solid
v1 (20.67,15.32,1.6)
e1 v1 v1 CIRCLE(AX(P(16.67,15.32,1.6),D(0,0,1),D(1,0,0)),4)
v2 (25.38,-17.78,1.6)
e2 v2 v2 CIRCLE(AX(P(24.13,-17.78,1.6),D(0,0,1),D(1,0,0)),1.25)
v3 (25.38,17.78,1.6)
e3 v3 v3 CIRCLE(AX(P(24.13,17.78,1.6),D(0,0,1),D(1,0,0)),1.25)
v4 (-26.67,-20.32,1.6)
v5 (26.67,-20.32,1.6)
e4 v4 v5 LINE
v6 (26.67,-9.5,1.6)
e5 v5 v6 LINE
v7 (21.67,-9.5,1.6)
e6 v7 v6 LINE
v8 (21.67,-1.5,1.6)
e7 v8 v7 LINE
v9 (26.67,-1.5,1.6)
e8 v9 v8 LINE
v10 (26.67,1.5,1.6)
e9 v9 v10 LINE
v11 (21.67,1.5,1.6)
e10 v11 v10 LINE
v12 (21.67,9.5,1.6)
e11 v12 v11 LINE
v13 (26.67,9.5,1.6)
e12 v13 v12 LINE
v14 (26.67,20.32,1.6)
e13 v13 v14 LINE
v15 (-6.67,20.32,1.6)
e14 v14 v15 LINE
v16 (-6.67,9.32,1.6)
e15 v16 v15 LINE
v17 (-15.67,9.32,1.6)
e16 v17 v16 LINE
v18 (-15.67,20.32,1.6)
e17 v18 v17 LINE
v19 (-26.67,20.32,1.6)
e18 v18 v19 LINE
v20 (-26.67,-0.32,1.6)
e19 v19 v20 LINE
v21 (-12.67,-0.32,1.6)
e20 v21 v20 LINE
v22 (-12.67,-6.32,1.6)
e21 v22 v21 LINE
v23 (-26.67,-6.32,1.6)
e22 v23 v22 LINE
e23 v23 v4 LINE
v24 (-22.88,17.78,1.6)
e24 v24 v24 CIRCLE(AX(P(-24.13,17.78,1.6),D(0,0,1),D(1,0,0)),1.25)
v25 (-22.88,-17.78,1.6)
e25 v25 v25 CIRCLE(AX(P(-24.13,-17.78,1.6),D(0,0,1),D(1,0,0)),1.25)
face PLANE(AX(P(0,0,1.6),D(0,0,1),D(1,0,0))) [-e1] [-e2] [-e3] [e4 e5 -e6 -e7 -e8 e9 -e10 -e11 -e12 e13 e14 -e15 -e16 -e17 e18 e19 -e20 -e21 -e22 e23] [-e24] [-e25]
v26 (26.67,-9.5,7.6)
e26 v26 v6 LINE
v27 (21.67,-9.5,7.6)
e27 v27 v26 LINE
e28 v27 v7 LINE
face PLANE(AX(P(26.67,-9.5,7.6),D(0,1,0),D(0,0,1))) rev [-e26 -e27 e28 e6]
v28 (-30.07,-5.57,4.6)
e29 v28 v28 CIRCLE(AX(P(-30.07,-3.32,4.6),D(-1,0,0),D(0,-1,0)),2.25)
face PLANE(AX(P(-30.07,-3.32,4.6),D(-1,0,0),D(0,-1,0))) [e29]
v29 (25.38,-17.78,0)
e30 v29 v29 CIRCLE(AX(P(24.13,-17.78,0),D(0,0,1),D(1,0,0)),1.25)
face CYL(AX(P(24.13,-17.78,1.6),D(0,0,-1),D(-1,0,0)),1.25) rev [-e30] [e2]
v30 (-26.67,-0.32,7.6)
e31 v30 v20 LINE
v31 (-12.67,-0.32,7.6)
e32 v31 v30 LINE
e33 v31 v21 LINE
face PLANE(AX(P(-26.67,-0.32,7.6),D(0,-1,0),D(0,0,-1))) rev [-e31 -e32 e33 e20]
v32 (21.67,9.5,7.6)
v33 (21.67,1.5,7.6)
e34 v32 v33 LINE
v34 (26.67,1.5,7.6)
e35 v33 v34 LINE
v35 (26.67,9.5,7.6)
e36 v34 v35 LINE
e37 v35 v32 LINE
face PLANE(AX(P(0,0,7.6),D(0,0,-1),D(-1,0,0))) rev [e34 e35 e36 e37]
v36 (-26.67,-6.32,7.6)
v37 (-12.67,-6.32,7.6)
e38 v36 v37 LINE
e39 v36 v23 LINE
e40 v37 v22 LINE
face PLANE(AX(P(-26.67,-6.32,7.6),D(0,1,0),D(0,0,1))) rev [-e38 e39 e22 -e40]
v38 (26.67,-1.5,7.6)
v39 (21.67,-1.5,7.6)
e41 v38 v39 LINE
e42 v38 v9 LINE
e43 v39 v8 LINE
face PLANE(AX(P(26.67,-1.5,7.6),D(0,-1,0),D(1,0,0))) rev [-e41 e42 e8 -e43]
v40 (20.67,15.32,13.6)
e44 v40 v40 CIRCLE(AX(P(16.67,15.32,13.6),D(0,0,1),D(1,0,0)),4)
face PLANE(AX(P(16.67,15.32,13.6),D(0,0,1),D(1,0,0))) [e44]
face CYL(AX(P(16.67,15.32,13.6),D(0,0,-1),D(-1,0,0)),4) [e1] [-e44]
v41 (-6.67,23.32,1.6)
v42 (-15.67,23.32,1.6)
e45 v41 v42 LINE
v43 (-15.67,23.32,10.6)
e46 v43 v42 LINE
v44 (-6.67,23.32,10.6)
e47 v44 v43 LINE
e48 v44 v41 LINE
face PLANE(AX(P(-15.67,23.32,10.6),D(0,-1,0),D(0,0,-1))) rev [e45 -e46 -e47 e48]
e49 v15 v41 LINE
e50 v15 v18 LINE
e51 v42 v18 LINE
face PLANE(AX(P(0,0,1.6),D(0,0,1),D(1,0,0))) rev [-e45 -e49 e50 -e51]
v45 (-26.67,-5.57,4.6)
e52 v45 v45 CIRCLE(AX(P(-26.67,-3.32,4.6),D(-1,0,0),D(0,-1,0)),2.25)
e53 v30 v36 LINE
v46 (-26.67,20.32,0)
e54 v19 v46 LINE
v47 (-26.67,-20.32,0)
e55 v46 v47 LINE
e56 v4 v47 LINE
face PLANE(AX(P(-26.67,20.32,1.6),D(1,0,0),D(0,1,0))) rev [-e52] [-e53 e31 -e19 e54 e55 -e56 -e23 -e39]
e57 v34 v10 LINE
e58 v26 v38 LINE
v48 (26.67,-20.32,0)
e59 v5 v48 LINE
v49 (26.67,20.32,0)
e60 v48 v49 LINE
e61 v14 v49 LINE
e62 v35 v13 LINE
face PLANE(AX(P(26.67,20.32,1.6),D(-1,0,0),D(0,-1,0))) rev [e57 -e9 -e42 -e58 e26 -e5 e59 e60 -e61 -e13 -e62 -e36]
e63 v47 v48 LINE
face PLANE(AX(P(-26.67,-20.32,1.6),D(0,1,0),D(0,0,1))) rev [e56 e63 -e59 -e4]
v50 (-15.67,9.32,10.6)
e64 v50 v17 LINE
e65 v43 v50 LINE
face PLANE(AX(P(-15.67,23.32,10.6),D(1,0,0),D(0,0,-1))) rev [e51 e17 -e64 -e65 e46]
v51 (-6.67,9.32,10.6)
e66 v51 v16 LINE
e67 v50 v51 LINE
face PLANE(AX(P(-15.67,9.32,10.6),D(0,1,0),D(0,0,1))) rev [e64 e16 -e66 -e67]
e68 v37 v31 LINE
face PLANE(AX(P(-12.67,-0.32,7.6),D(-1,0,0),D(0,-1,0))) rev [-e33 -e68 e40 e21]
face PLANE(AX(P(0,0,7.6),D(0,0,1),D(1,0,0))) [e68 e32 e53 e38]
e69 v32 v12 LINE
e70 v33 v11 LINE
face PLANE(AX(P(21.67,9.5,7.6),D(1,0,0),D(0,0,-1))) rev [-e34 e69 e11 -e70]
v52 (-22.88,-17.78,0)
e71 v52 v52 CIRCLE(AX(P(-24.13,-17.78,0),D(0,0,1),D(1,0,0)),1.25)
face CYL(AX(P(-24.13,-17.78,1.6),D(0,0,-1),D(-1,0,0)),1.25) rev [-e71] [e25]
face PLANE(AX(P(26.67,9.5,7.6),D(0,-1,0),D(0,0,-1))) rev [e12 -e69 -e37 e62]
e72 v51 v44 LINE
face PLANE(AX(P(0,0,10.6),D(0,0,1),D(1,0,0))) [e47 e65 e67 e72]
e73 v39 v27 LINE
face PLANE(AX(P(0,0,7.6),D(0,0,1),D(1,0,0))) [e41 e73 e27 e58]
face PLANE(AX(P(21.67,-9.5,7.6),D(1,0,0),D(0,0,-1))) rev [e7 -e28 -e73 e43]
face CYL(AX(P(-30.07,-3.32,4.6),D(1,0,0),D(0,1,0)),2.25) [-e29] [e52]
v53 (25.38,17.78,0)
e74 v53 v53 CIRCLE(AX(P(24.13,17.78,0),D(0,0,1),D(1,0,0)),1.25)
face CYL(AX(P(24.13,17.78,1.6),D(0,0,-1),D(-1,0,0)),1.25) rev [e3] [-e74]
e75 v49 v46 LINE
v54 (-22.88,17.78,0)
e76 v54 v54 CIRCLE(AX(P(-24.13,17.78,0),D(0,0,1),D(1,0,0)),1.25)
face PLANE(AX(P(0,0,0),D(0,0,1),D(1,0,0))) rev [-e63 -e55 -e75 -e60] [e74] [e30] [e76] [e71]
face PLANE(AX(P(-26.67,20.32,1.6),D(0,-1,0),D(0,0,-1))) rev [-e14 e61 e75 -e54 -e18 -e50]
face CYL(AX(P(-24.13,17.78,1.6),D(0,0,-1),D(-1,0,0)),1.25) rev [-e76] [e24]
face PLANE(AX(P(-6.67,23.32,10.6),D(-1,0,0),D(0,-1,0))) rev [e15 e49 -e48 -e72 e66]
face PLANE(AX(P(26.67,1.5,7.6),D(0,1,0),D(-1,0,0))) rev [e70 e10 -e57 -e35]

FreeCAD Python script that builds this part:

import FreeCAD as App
import Part
import Sketcher
from FreeCAD import Vector


def add_polygon(sketch, points):
    """Adds a closed chain of lines whose ends are joined by coincident constraints."""
    first, n = sketch.GeometryCount, len(points)
    for a, b in zip(points, points[1:] + points[:1]):
        sketch.addGeometry(Part.LineSegment(App.Vector(*a, 0), App.Vector(*b, 0)), False)
    for i in range(n):
        sketch.addConstraint(Sketcher.Constraint("Coincident", first + i, 2, first + (i + 1) % n, 1))

doc = App.newDocument("Part")
body = doc.addObject("PartDesign::Body", "Body")

# Sketch on XY plane
sketch1 = body.newObject("Sketcher::SketchObject", "Sketch")
sketch1.AttachmentSupport = (doc.getObject("XY_Plane"), [""])
sketch1.MapMode = "FlatFace"
add_polygon(sketch1, [(-26.7, 20.3), (-26.7, -20.3), (26.7, -20.3), (26.7, 20.3)])  # lines 0-3
sketch1.addGeometry(Part.Circle(Vector(-24.1, -17.8, 0), Vector(0, 0, 1), 1.2), False)  # 4
sketch1.addGeometry(Part.Circle(Vector(24.1, -17.8, 0), Vector(0, 0, 1), 1.2), False)  # 5
sketch1.addGeometry(Part.Circle(Vector(-24.1, 17.8, 0), Vector(0, 0, 1), 1.2), False)  # 6
sketch1.addGeometry(Part.Circle(Vector(24.1, 17.8, 0), Vector(0, 0, 1), 1.2), False)  # 7
sketch1.addConstraint(Sketcher.Constraint("Vertical", 0))
sketch1.addConstraint(Sketcher.Constraint("Horizontal", 1))
sketch1.addConstraint(Sketcher.Constraint("Vertical", 2))
sketch1.addConstraint(Sketcher.Constraint("Horizontal", 3))
sketch1.addConstraint(Sketcher.Constraint("Equal", 4, 5))
sketch1.addConstraint(Sketcher.Constraint("Equal", 5, 6))
sketch1.addConstraint(Sketcher.Constraint("Equal", 6, 7))
sketch1.addConstraint(Sketcher.Constraint("Symmetric", 5, 3, 6, 3, -1, 1))
sketch1.addConstraint(Sketcher.Constraint("Symmetric", 4, 3, 7, 3, -1, 1))
sketch1.addConstraint(Sketcher.Constraint("Symmetric", 0, 2, 2, 2, -1, 1))
sketch1.addConstraint(Sketcher.Constraint("Symmetric", 4, 3, 5, 3, -2))
sketch1.addConstraint(Sketcher.Constraint("Diameter", 4, 2.5))
sketch1.addConstraint(Sketcher.Constraint("DistanceX", 1, 1, 1, 2, 53.34))
sketch1.addConstraint(Sketcher.Constraint("DistanceY", 0, 2, 0, 1, 40.64))
sketch1.addConstraint(Sketcher.Constraint("DistanceY", 0, 2, 6, 3, 38.1))
sketch1.addConstraint(Sketcher.Constraint("DistanceX", 0, 2, 5, 3, 50.8))
pad1 = body.newObject("PartDesign::Pad", "Pad")
pad1.Profile = sketch1
pad1.Length = 1.6

# Sketch on XY plane
sketch2 = body.newObject("Sketcher::SketchObject", "Sketch001")
sketch2.AttachmentSupport = (doc.getObject("XY_Plane"), [""])
sketch2.MapMode = "FlatFace"
sketch2.AttachmentOffset = App.Placement(Vector(0, 0, 1.6), App.Rotation())
add_polygon(sketch2, [(-27, 0), (-27, -6), (-13, -6), (-13, 0)])  # lines 0-3
add_polygon(sketch2, [(22, 10), (22, 2), (27, 2), (27, 10)])  # lines 4-7
add_polygon(sketch2, [(22, -2), (22, -10), (27, -10), (27, -2)])  # lines 8-11
sketch2.addConstraint(Sketcher.Constraint("Vertical", 0))
sketch2.addConstraint(Sketcher.Constraint("Horizontal", 1))
sketch2.addConstraint(Sketcher.Constraint("Vertical", 2))
sketch2.addConstraint(Sketcher.Constraint("Horizontal", 3))
sketch2.addConstraint(Sketcher.Constraint("Vertical", 4))
sketch2.addConstraint(Sketcher.Constraint("Horizontal", 5))
sketch2.addConstraint(Sketcher.Constraint("Vertical", 6))
sketch2.addConstraint(Sketcher.Constraint("Horizontal", 7))
sketch2.addConstraint(Sketcher.Constraint("Vertical", 8))
sketch2.addConstraint(Sketcher.Constraint("Horizontal", 9))
sketch2.addConstraint(Sketcher.Constraint("Vertical", 10))
sketch2.addConstraint(Sketcher.Constraint("Horizontal", 11))
sketch2.addConstraint(Sketcher.Constraint("Symmetric", 7, 2, 8, 2, -1))
sketch2.addConstraint(Sketcher.Constraint("Symmetric", 5, 2, 10, 2, -1))
sketch2.addConstraint(Sketcher.Constraint("DistanceX", 1, 1, 1, 2, 14.0))
sketch2.addConstraint(Sketcher.Constraint("DistanceX", 5, 1, 5, 2, 5.0))
sketch2.addConstraint(Sketcher.Constraint("DistanceY", 0, 2, 0, 1, 6.0))
sketch2.addConstraint(Sketcher.Constraint("DistanceY", 4, 2, 4, 1, 8.0))
sketch2.addConstraint(Sketcher.Constraint("DistanceY", 8, 2, 4, 2, 11.0))
sketch2.addConstraint(Sketcher.Constraint("DistanceX", 0, 2, -1, 1, 26.67))
sketch2.addConstraint(Sketcher.Constraint("DistanceY", 0, 2, -1, 1, 6.32))
sketch2.addConstraint(Sketcher.Constraint("DistanceX", -1, 1, 4, 2, 21.67))
pad2 = body.newObject("PartDesign::Pad", "Pad001")
pad2.Profile = sketch2
pad2.Length = 6

# Sketch on YZ plane
sketch3 = body.newObject("Sketcher::SketchObject", "Sketch002")
sketch3.AttachmentSupport = (doc.getObject("YZ_Plane"), [""])
sketch3.MapMode = "FlatFace"
sketch3.AttachmentOffset = App.Placement(Vector(0, 0, -26.67), App.Rotation())
sketch3.addGeometry(Part.Circle(Vector(-3.3, 4.6, 0), Vector(0, 0, 1), 2.2), False)
sketch3.addConstraint(Sketcher.Constraint("Diameter", 0, 4.5))
sketch3.addConstraint(Sketcher.Constraint("DistanceY", -1, 1, 0, 3, 4.6))
sketch3.addConstraint(Sketcher.Constraint("DistanceX", 0, 3, -1, 1, 3.32))
pad3 = body.newObject("PartDesign::Pad", "Pad002")
pad3.Profile = sketch3
pad3.Length = 3.4
pad3.Reversed = True

# Sketch on XY plane
sketch4 = body.newObject("Sketcher::SketchObject", "Sketch003")
sketch4.AttachmentSupport = (doc.getObject("XY_Plane"), [""])
sketch4.MapMode = "FlatFace"
sketch4.AttachmentOffset = App.Placement(Vector(0, 0, 1.6), App.Rotation())
add_polygon(sketch4, [(-16, 23), (-16, 9), (-7, 9), (-7, 23)])  # lines 0-3
sketch4.addConstraint(Sketcher.Constraint("Vertical", 0))
sketch4.addConstraint(Sketcher.Constraint("Horizontal", 1))
sketch4.addConstraint(Sketcher.Constraint("Vertical", 2))
sketch4.addConstraint(Sketcher.Constraint("Horizontal", 3))
sketch4.addConstraint(Sketcher.Constraint("DistanceX", 1, 1, 1, 2, 9.0))
sketch4.addConstraint(Sketcher.Constraint("DistanceY", 0, 2, 0, 1, 14.0))
sketch4.addConstraint(Sketcher.Constraint("DistanceX", 0, 2, -1, 1, 15.67))
sketch4.addConstraint(Sketcher.Constraint("DistanceY", -1, 1, 0, 2, 9.32))
pad4 = body.newObject("PartDesign::Pad", "Pad003")
pad4.Profile = sketch4
pad4.Length = 9

# Sketch on XY plane
sketch5 = body.newObject("Sketcher::SketchObject", "Sketch004")
sketch5.AttachmentSupport = (doc.getObject("XY_Plane"), [""])
sketch5.MapMode = "FlatFace"
sketch5.AttachmentOffset = App.Placement(Vector(0, 0, 1.6), App.Rotation())
sketch5.addGeometry(Part.Circle(Vector(16.7, 15.3, 0), Vector(0, 0, 1), 4), False)
sketch5.addConstraint(Sketcher.Constraint("Diameter", 0, 8.0))
sketch5.addConstraint(Sketcher.Constraint("DistanceX", -1, 1, 0, 3, 16.67))
sketch5.addConstraint(Sketcher.Constraint("DistanceY", -1, 1, 0, 3, 15.32))
pad5 = body.newObject("PartDesign::Pad", "Pad004")
pad5.Profile = sketch5
pad5.Length = 12

doc.recompute()
